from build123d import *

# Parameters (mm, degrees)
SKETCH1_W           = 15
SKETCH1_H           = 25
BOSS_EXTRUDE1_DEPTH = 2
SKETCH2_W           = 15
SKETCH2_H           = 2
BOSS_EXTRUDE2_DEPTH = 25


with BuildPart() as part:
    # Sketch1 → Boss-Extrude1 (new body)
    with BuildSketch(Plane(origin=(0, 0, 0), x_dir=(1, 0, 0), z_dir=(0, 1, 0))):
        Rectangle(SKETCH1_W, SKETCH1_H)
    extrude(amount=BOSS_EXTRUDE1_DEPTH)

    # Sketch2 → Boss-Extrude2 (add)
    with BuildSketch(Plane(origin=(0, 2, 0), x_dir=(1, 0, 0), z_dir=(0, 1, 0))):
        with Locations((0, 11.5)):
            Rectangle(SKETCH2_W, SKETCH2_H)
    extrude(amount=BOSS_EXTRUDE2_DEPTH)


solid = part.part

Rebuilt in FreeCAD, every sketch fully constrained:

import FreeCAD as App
import Part
import Sketcher
from FreeCAD import Vector

doc = App.newDocument("Part")
body = doc.addObject("PartDesign::Body", "Body")

# Sketch on XZ plane
sketch1 = body.newObject("Sketcher::SketchObject", "Sketch")
sketch1.AttachmentSupport = (doc.getObject("XZ_Plane"), [""])
sketch1.MapMode = "FlatFace"
sketch1.addGeometry([
    Part.LineSegment(Vector(-8, -12, 0), Vector(-8, 12, 0)),
    Part.LineSegment(Vector(-8, 12, 0), Vector(8, 12, 0)),
    Part.LineSegment(Vector(8, 12, 0), Vector(8, -12, 0)),
    Part.LineSegment(Vector(8, -12, 0), Vector(-8, -12, 0)),
], False)
sketch1.addConstraint([
    Sketcher.Constraint("Coincident", 0, 2, 1, 1),
    Sketcher.Constraint("Coincident", 1, 2, 2, 1),
    Sketcher.Constraint("Coincident", 2, 2, 3, 1),
    Sketcher.Constraint("Coincident", 3, 2, 0, 1),
    Sketcher.Constraint("Vertical", 0),
    Sketcher.Constraint("Horizontal", 1),
    Sketcher.Constraint("Vertical", 2),
    Sketcher.Constraint("Horizontal", 3),
    Sketcher.Constraint("Symmetric", 0, 2, 2, 2, -1, 1),
    Sketcher.Constraint("DistanceX", 1, 1, 1, 2, 15.0),
    Sketcher.Constraint("DistanceY", 0, 1, 0, 2, 25.0),
])
pad1 = body.newObject("PartDesign::Pad", "Pad")
pad1.Profile = sketch1
pad1.Length = 2
pad1.Reversed = True

# Sketch on XZ plane
sketch2 = body.newObject("Sketcher::SketchObject", "Sketch001")
sketch2.AttachmentSupport = (doc.getObject("XZ_Plane"), [""])
sketch2.MapMode = "FlatFace"
sketch2.AttachmentOffset = App.Placement(Vector(0, 0, -2), App.Rotation())
sketch2.addGeometry([
    Part.LineSegment(Vector(-7.5, -12.5, 0), Vector(-7.5, -10.5, 0)),
    Part.LineSegment(Vector(-7.5, -10.5, 0), Vector(7.5, -10.5, 0)),
    Part.LineSegment(Vector(7.5, -10.5, 0), Vector(7.5, -12.5, 0)),
    Part.LineSegment(Vector(7.5, -12.5, 0), Vector(-7.5, -12.5, 0)),
], False)
sketch2.addConstraint([
    Sketcher.Constraint("Coincident", 0, 2, 1, 1),
    Sketcher.Constraint("Coincident", 1, 2, 2, 1),
    Sketcher.Constraint("Coincident", 2, 2, 3, 1),
    Sketcher.Constraint("Coincident", 3, 2, 0, 1),
    Sketcher.Constraint("Vertical", 0),
    Sketcher.Constraint("Horizontal", 1),
    Sketcher.Constraint("Vertical", 2),
    Sketcher.Constraint("Horizontal", 3),
    Sketcher.Constraint("DistanceX", 1, 1, 1, 2, 15.0),
    Sketcher.Constraint("DistanceY", 0, 1, 0, 2, 2.0),
    Sketcher.Constraint("DistanceX", 0, 2, -1, 1, 7.5),
    Sketcher.Constraint("DistanceY", 0, 2, -1, 1, 10.5),
])
pad2 = body.newObject("PartDesign::Pad", "Pad001")
pad2.Profile = sketch2
pad2.Length = 25
pad2.Reversed = True

doc.recompute()
